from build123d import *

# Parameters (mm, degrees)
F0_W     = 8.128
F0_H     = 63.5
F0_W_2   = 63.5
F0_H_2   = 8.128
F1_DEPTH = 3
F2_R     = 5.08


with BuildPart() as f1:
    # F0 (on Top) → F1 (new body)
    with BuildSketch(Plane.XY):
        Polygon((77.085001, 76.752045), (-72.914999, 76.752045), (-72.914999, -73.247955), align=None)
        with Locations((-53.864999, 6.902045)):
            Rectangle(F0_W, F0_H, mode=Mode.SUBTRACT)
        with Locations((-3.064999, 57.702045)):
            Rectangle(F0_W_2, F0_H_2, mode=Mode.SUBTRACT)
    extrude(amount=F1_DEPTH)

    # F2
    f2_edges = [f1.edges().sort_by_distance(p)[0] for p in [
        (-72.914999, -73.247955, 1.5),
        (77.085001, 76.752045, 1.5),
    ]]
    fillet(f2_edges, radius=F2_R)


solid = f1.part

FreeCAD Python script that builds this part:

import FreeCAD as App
import Part
import Sketcher

V = App.Vector
Q = App.Units.Quantity


def edges_at(feature, points):
    """Names of the edges that pass closest to the given points."""
    edges = feature.Shape.Edges
    near = lambda p: min(range(len(edges)), key=lambda i: edges[i].distToShape(Part.Vertex(*p))[0])
    return sorted({f"Edge{near(p) + 1}" for p in points})

doc = App.newDocument("Part")
body = doc.addObject("PartDesign::Body", "Body")

# Sketch on XY plane
sketch1 = body.newObject("Sketcher::SketchObject", "Sketch")
sketch1.AttachmentSupport = (doc.getObject("XY_Plane"), [""])
sketch1.MapMode = "FlatFace"
sketch1.addGeometry(Part.LineSegment(V(77, 77, 0), V(-73, 77, 0)), False)
sketch1.addGeometry(Part.LineSegment(V(-73, 77, 0), V(-73, -73, 0)), False)
sketch1.addGeometry(Part.LineSegment(V(-73, -73, 0), V(77, 77, 0)), False)
sketch1.addGeometry(Part.LineSegment(V(-50, -25, 0), V(-58, -25, 0)), False)
sketch1.addGeometry(Part.LineSegment(V(-58, -25, 0), V(-58, 39, 0)), False)
sketch1.addGeometry(Part.LineSegment(V(-58, 39, 0), V(-50, 39, 0)), False)
sketch1.addGeometry(Part.LineSegment(V(-50, 39, 0), V(-50, -25, 0)), False)
sketch1.addGeometry(Part.LineSegment(V(29, 54, 0), V(-35, 54, 0)), False)
sketch1.addGeometry(Part.LineSegment(V(-35, 54, 0), V(-35, 62, 0)), False)
sketch1.addGeometry(Part.LineSegment(V(-35, 62, 0), V(29, 62, 0)), False)
sketch1.addGeometry(Part.LineSegment(V(29, 62, 0), V(29, 54, 0)), False)
sketch1.addConstraint(Sketcher.Constraint("Coincident", 0, 2, 1, 1))
sketch1.addConstraint(Sketcher.Constraint("Coincident", 1, 2, 2, 1))
sketch1.addConstraint(Sketcher.Constraint("Coincident", 2, 2, 0, 1))
sketch1.addConstraint(Sketcher.Constraint("Coincident", 3, 2, 4, 1))
sketch1.addConstraint(Sketcher.Constraint("Coincident", 4, 2, 5, 1))
sketch1.addConstraint(Sketcher.Constraint("Coincident", 5, 2, 6, 1))
sketch1.addConstraint(Sketcher.Constraint("Coincident", 6, 2, 3, 1))
sketch1.addConstraint(Sketcher.Constraint("Coincident", 7, 2, 8, 1))
sketch1.addConstraint(Sketcher.Constraint("Coincident", 8, 2, 9, 1))
sketch1.addConstraint(Sketcher.Constraint("Coincident", 9, 2, 10, 1))
sketch1.addConstraint(Sketcher.Constraint("Coincident", 10, 2, 7, 1))
sketch1.addConstraint(Sketcher.Constraint("Horizontal", 0))
sketch1.addConstraint(Sketcher.Constraint("Vertical", 1))
sketch1.addConstraint(Sketcher.Constraint("Horizontal", 3))
sketch1.addConstraint(Sketcher.Constraint("Vertical", 4))
sketch1.addConstraint(Sketcher.Constraint("Horizontal", 5))
sketch1.addConstraint(Sketcher.Constraint("Vertical", 6))
sketch1.addConstraint(Sketcher.Constraint("Horizontal", 7))
sketch1.addConstraint(Sketcher.Constraint("Vertical", 8))
sketch1.addConstraint(Sketcher.Constraint("Horizontal", 9))
sketch1.addConstraint(Sketcher.Constraint("Vertical", 10))
sketch1.addConstraint(Sketcher.Constraint("Equal", 0, 1))
sketch1.addConstraint(Sketcher.Constraint("Equal", 9, 4))
sketch1.addConstraint(Sketcher.Constraint("Equal", 5, 8))
sketch1.addConstraint(Sketcher.Constraint("DistanceX", 7, 2, 7, 1, Q("2.5 in")))
sketch1.addConstraint(Sketcher.Constraint("DistanceY", 3, 2, 0, 2, Q("4 in")))
sketch1.addConstraint(Sketcher.Constraint("DistanceX", 3, 2, 3, 1, Q("0.32 in")))
sketch1.addConstraint(Sketcher.Constraint("DistanceX", 0, 2, 7, 2, Q("1.5 in")))
sketch1.addConstraint(Sketcher.Constraint("DistanceX", 1, 2, 3, 2, Q("0.59 in")))
sketch1.addConstraint(Sketcher.Constraint("DistanceY", 5, 2, 7, 2, Q("0.59 in")))
sketch1.addConstraint(Sketcher.Constraint("DistanceX", 0, 2, 0, 1, 150.0))
sketch1.addConstraint(Sketcher.Constraint("DistanceX", 0, 2, -1, 1, 72.914999))
sketch1.addConstraint(Sketcher.Constraint("DistanceY", -1, 1, 0, 2, 76.752045))
pad1 = body.newObject("PartDesign::Pad", "Pad")
pad1.Profile = sketch1
pad1.Length = 3
doc.recompute()

fillet = body.newObject("PartDesign::Fillet", "Fillet")
fillet.Base = (pad1, edges_at(pad1, [(-72.915, -73.248, 1.5), (77.085, 76.752, 1.5)]))
fillet.Radius = Q("0.2 in")

doc.recompute()
